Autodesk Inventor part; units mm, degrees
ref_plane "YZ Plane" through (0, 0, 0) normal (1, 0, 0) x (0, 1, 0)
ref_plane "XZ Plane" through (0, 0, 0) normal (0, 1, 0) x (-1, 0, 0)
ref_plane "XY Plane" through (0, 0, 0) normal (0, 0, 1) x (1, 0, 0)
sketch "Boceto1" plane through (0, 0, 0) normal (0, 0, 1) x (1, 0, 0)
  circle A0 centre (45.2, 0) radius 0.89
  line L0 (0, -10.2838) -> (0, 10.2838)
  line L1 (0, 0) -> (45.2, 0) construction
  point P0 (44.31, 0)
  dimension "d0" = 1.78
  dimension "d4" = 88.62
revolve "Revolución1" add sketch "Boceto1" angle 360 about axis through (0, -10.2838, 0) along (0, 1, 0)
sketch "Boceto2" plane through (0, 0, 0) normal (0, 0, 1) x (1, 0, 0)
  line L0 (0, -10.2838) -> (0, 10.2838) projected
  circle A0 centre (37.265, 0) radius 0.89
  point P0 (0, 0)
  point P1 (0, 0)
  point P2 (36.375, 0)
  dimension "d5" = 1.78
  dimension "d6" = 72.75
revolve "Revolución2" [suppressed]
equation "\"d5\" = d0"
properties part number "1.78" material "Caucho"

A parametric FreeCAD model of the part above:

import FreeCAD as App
import Part
import Sketcher

doc = App.newDocument("Part")
params = doc.addObject("Spreadsheet::Sheet", "Params")
for row, (alias, value) in enumerate([
    ("sketch1_diameter", "1.78 mm"),
    ("revolution_angle", "360 deg"),
], start=1):
    params.set(f"A{row}", alias)
    params.set(f"B{row}", "=" + value)
    params.setAlias(f"B{row}", alias)

body = doc.addObject("PartDesign::Body", "Body")

# Sketch on XY plane
sketch1 = body.newObject("Sketcher::SketchObject", "Sketch")
sketch1.AttachmentSupport = (doc.getObject("XY_Plane"), [""])
sketch1.MapMode = "FlatFace"
sketch1.addGeometry(Part.Circle(App.Vector(45.2, 0, 0), App.Vector(0, 0, 1), 0.9), False)
sketch1.addConstraint(Sketcher.Constraint("PointOnObject", 0, 3, -1))
sketch1.addConstraint(Sketcher.Constraint("Diameter", 0, 1.78))
sketch1.addConstraint(Sketcher.Constraint("DistanceX", -1, 1, 0, 3, 45.2))
sketch1.setExpression("Constraints[1]", "Params.sketch1_diameter")
revolution = body.newObject("PartDesign::Revolution", "Revolution")
revolution.Profile = sketch1
revolution.ReferenceAxis = (sketch1, ["V_Axis"])
revolution.setExpression("Angle", "Params.revolution_angle")

doc.recompute()
